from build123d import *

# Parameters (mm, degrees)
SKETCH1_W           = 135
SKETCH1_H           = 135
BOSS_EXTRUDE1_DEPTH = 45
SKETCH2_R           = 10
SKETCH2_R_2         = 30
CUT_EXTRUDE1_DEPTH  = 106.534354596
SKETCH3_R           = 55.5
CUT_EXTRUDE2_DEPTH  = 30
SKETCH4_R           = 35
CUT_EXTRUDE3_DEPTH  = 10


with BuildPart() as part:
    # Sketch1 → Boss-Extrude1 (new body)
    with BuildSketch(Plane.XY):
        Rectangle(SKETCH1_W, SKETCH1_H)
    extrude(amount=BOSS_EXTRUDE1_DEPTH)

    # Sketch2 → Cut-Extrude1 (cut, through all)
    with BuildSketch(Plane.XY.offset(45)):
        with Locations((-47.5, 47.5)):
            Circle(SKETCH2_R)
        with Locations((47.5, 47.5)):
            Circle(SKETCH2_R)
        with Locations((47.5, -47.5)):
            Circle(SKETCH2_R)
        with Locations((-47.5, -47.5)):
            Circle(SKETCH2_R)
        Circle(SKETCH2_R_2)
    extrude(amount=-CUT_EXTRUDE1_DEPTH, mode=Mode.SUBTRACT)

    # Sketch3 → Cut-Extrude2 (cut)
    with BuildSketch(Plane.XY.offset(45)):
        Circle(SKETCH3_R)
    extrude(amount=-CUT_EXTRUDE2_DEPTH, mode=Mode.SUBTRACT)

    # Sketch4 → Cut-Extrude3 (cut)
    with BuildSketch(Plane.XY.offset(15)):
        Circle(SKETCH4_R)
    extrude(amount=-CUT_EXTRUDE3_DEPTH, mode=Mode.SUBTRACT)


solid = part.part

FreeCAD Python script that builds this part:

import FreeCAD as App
import Part
import Sketcher
from FreeCAD import Vector
Q = App.Units.Quantity

doc = App.newDocument("Part")
body = doc.addObject("PartDesign::Body", "Body")

# Sketch on XY plane
sketch1 = body.newObject("Sketcher::SketchObject", "Sketch")
sketch1.AttachmentSupport = (doc.getObject("XY_Plane"), [""])
sketch1.MapMode = "FlatFace"
sketch1.addGeometry(Part.LineSegment(Vector(-67.5, 67.5, 0), Vector(-67.5, -67.5, 0)), False)
sketch1.addGeometry(Part.LineSegment(Vector(-67.5, -67.5, 0), Vector(67.5, -67.5, 0)), False)
sketch1.addGeometry(Part.LineSegment(Vector(67.5, -67.5, 0), Vector(67.5, 67.5, 0)), False)
sketch1.addGeometry(Part.LineSegment(Vector(67.5, 67.5, 0), Vector(-67.5, 67.5, 0)), False)
sketch1.addConstraint(Sketcher.Constraint("Coincident", 0, 2, 1, 1))
sketch1.addConstraint(Sketcher.Constraint("Coincident", 1, 2, 2, 1))
sketch1.addConstraint(Sketcher.Constraint("Coincident", 2, 2, 3, 1))
sketch1.addConstraint(Sketcher.Constraint("Coincident", 3, 2, 0, 1))
sketch1.addConstraint(Sketcher.Constraint("Vertical", 0))
sketch1.addConstraint(Sketcher.Constraint("Horizontal", 1))
sketch1.addConstraint(Sketcher.Constraint("Vertical", 2))
sketch1.addConstraint(Sketcher.Constraint("Horizontal", 3))
sketch1.addConstraint(Sketcher.Constraint("Symmetric", 0, 2, 2, 2, -1, 1))
sketch1.addConstraint(Sketcher.Constraint("Equal", 3, 0))
sketch1.addConstraint(Sketcher.Constraint("DistanceX", 1, 1, 1, 2, Q("135 mm")))
pad1 = body.newObject("PartDesign::Pad", "Pad")
pad1.Profile = sketch1
pad1.Length = 45

# Sketch on XY plane
sketch2 = body.newObject("Sketcher::SketchObject", "Sketch001")
sketch2.AttachmentSupport = (doc.getObject("XY_Plane"), [""])
sketch2.MapMode = "FlatFace"
sketch2.AttachmentOffset = App.Placement(Vector(0, 0, 45), App.Rotation())
sketch2.addGeometry(Part.Circle(Vector(-47.5, 47.5, 0), Vector(0, 0, 1), 10), False)
sketch2.addGeometry(Part.Circle(Vector(47.5, 47.5, 0), Vector(0, 0, 1), 10), False)
sketch2.addGeometry(Part.Circle(Vector(47.5, -47.5, 0), Vector(0, 0, 1), 10), False)
sketch2.addGeometry(Part.Circle(Vector(-47.5, -47.5, 0), Vector(0, 0, 1), 10), False)
sketch2.addGeometry(Part.Circle(Vector(0, 0, 0), Vector(0, 0, 1), 30), False)
sketch2.addConstraint(Sketcher.Constraint("Coincident", 4, 3, -1, 1))
sketch2.addConstraint(Sketcher.Constraint("Equal", 0, 1))
sketch2.addConstraint(Sketcher.Constraint("Equal", 1, 2))
sketch2.addConstraint(Sketcher.Constraint("Equal", 2, 3))
sketch2.addConstraint(Sketcher.Constraint("Symmetric", 0, 3, 2, 3, -1, 1))
sketch2.addConstraint(Sketcher.Constraint("Symmetric", 1, 3, 3, 3, -1, 1))
sketch2.addConstraint(Sketcher.Constraint("Symmetric", 0, 3, 1, 3, -2))
sketch2.addConstraint(Sketcher.Constraint("Diameter", 0, Q("20 mm")))
sketch2.addConstraint(Sketcher.Constraint("Diameter", 4, Q("60 mm")))
sketch2.addConstraint(Sketcher.Constraint("DistanceX", 0, 3, 1, 3, Q("95 mm")))
sketch2.addConstraint(Sketcher.Constraint("DistanceY", 2, 3, 1, 3, Q("95 mm")))
pocket1 = body.newObject("PartDesign::Pocket", "Pocket")
pocket1.Profile = sketch2
pocket1.Type = "ThroughAll"

# Sketch on XY plane
sketch3 = body.newObject("Sketcher::SketchObject", "Sketch002")
sketch3.AttachmentSupport = (doc.getObject("XY_Plane"), [""])
sketch3.MapMode = "FlatFace"
sketch3.AttachmentOffset = App.Placement(Vector(0, 0, 45), App.Rotation())
sketch3.addGeometry(Part.Circle(Vector(0, 0, 0), Vector(0, 0, 1), 55.5), False)
sketch3.addConstraint(Sketcher.Constraint("Coincident", 0, 3, -1, 1))
sketch3.addConstraint(Sketcher.Constraint("Diameter", 0, Q("111 mm")))
pocket2 = body.newObject("PartDesign::Pocket", "Pocket001")
pocket2.Profile = sketch3
pocket2.Length = 30

# Sketch on XY plane
sketch4 = body.newObject("Sketcher::SketchObject", "Sketch003")
sketch4.AttachmentSupport = (doc.getObject("XY_Plane"), [""])
sketch4.MapMode = "FlatFace"
sketch4.AttachmentOffset = App.Placement(Vector(0, 0, 15), App.Rotation())
sketch4.addGeometry(Part.Circle(Vector(0, 0, 0), Vector(0, 0, 1), 35), False)
sketch4.addConstraint(Sketcher.Constraint("Coincident", 0, 3, -1, 1))
sketch4.addConstraint(Sketcher.Constraint("Diameter", 0, Q("70 mm")))
pocket3 = body.newObject("PartDesign::Pocket", "Pocket002")
pocket3.Profile = sketch4
pocket3.Length = 10

doc.recompute()
